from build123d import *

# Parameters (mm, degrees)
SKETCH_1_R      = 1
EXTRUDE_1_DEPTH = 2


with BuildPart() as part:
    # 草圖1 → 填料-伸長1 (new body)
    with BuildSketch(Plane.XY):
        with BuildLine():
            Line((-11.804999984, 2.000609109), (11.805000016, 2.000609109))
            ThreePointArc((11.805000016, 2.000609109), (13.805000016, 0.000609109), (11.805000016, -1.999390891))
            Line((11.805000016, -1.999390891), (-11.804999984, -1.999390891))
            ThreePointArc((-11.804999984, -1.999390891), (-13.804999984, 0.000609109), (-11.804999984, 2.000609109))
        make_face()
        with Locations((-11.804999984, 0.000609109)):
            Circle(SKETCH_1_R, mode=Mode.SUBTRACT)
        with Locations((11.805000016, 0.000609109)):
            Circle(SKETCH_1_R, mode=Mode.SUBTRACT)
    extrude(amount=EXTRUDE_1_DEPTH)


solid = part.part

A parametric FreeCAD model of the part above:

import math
import FreeCAD as App
import Part
import Sketcher

doc = App.newDocument("Part")
body = doc.addObject("PartDesign::Body", "Body")

# Sketch on XY plane
sketch1 = doc.addObject("Sketcher::SketchObject", "Sketch")
body.addObject(sketch1)
sketch1.AttachmentSupport = (doc.XY_Plane, [""])
sketch1.MapMode = "FlatFace"
sketch1.addGeometry([
    Part.LineSegment(App.Vector(11.8, 2, 0), App.Vector(-11.8, 2, 0)),  # 0
    Part.ArcOfCircle(Part.Circle(App.Vector(-11.8, 0, 0), App.Vector(0, 0, 1), 2), math.radians(90), math.radians(270)),  # 1
    Part.LineSegment(App.Vector(-11.8, -2, 0), App.Vector(11.8, -2, 0)),  # 2
    Part.ArcOfCircle(Part.Circle(App.Vector(11.8, 0, 0), App.Vector(0, 0, 1), 2), math.radians(-90), math.radians(90)),  # 3
    Part.Circle(App.Vector(11.8, 0, 0), App.Vector(0, 0, 1), 1),  # 4
    Part.Circle(App.Vector(-11.8, 0, 0), App.Vector(0, 0, 1), 1),  # 5
], False)
sketch1.addConstraint([
    Sketcher.Constraint("Tangent", 0, 2, 1, 1),
    Sketcher.Constraint("Tangent", 1, 2, 2, 1),
    Sketcher.Constraint("Tangent", 2, 2, 3, 1),
    Sketcher.Constraint("Tangent", 3, 2, 0, 1),
    Sketcher.Constraint("Horizontal", 0),
    Sketcher.Constraint("Horizontal", 2),
    Sketcher.Constraint("Coincident", 4, 3, 3, 3),
    Sketcher.Constraint("Coincident", 5, 3, 1, 3),
    Sketcher.Constraint("Equal", 4, 5),
    Sketcher.Constraint("Diameter", 4, 2.0),
    Sketcher.Constraint("Radius", 1, 2.0),
    Sketcher.Constraint("DistanceX", 0, 2, 0, 1, 23.61),
    Sketcher.Constraint("DistanceX", 1, 3, -1, 1, 11.805),
    Sketcher.Constraint("DistanceY", -1, 1, 1, 3, 0.000609),
])
pad1 = doc.addObject("PartDesign::Pad", "Pad")
body.addObject(pad1)
pad1.Profile = sketch1
pad1.Length = 2

doc.recompute()
